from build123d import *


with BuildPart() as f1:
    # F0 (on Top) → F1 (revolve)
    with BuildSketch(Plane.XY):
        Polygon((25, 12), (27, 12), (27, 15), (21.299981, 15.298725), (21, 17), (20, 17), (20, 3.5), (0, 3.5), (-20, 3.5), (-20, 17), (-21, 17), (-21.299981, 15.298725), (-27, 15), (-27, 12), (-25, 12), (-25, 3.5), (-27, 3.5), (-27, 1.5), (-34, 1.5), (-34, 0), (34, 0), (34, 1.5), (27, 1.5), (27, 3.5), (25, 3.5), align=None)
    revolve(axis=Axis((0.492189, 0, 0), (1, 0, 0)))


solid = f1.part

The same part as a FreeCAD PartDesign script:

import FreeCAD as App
import Part
import Sketcher
from FreeCAD import Vector
Q = App.Units.Quantity

doc = App.newDocument("Part")
params = doc.addObject("Spreadsheet::Sheet", "Params")
for row, (alias, value) in enumerate([
    ("sketch1_width", "2 mm"),
    ("sketch1_width2", "1 mm"),
    ("sketch1_width3", "40 mm"),
    ("sketch1_width4", "7 mm"),
    ("sketch1_width5", "68 mm"),
    ("revolution_angle", "360 deg"),
], start=1):
    params.set(f"A{row}", alias)
    params.set(f"B{row}", "=" + value)
    params.setAlias(f"B{row}", alias)

body = doc.addObject("PartDesign::Body", "Body")

sketch1 = doc.addObject("Sketcher::SketchObject", "Sketch")
body.addObject(sketch1)
sketch1.AttachmentSupport = (doc.XY_Plane, [""])
sketch1.MapMode = "FlatFace"
sketch1.addGeometry(Part.LineSegment(Vector(25, 12, 0), Vector(27, 12, 0)), False)
sketch1.addGeometry(Part.LineSegment(Vector(27, 12, 0), Vector(27, 15, 0)), False)
sketch1.addGeometry(Part.LineSegment(Vector(27, 15, 0), Vector(21.3, 15.3, 0)), False)
sketch1.addGeometry(Part.LineSegment(Vector(21.3, 15.3, 0), Vector(21, 17, 0)), False)
sketch1.addGeometry(Part.LineSegment(Vector(21, 17, 0), Vector(20, 17, 0)), False)
sketch1.addGeometry(Part.LineSegment(Vector(20, 17, 0), Vector(20, 3.5, 0)), False)
sketch1.addGeometry(Part.LineSegment(Vector(20, 3.5, 0), Vector(-20, 3.5, 0)), False)
sketch1.addGeometry(Part.LineSegment(Vector(-20, 3.5, 0), Vector(-20, 17, 0)), False)
sketch1.addGeometry(Part.LineSegment(Vector(-20, 17, 0), Vector(-21, 17, 0)), False)
sketch1.addGeometry(Part.LineSegment(Vector(-21, 17, 0), Vector(-21.3, 15.3, 0)), False)
sketch1.addGeometry(Part.LineSegment(Vector(-21.3, 15.3, 0), Vector(-27, 15, 0)), False)
sketch1.addGeometry(Part.LineSegment(Vector(-27, 15, 0), Vector(-27, 12, 0)), False)
sketch1.addGeometry(Part.LineSegment(Vector(-27, 12, 0), Vector(-25, 12, 0)), False)
sketch1.addGeometry(Part.LineSegment(Vector(-25, 12, 0), Vector(-25, 3.5, 0)), False)
sketch1.addGeometry(Part.LineSegment(Vector(-25, 3.5, 0), Vector(-27, 3.5, 0)), False)
sketch1.addGeometry(Part.LineSegment(Vector(-27, 3.5, 0), Vector(-27, 1.5, 0)), False)
sketch1.addGeometry(Part.LineSegment(Vector(-27, 1.5, 0), Vector(-34, 1.5, 0)), False)
sketch1.addGeometry(Part.LineSegment(Vector(-34, 1.5, 0), Vector(-34, 0, 0)), False)
sketch1.addGeometry(Part.LineSegment(Vector(-34, 0, 0), Vector(34, 0, 0)), False)
sketch1.addGeometry(Part.LineSegment(Vector(34, 0, 0), Vector(34, 1.5, 0)), False)
sketch1.addGeometry(Part.LineSegment(Vector(34, 1.5, 0), Vector(27, 1.5, 0)), False)
sketch1.addGeometry(Part.LineSegment(Vector(27, 1.5, 0), Vector(27, 3.5, 0)), False)
sketch1.addGeometry(Part.LineSegment(Vector(27, 3.5, 0), Vector(25, 3.5, 0)), False)
sketch1.addGeometry(Part.LineSegment(Vector(25, 3.5, 0), Vector(25, 12, 0)), False)
sketch1.addConstraint(Sketcher.Constraint("Coincident", 0, 2, 1, 1))
sketch1.addConstraint(Sketcher.Constraint("Coincident", 1, 2, 2, 1))
sketch1.addConstraint(Sketcher.Constraint("Coincident", 2, 2, 3, 1))
sketch1.addConstraint(Sketcher.Constraint("Coincident", 3, 2, 4, 1))
sketch1.addConstraint(Sketcher.Constraint("Coincident", 4, 2, 5, 1))
sketch1.addConstraint(Sketcher.Constraint("Coincident", 5, 2, 6, 1))
sketch1.addConstraint(Sketcher.Constraint("Coincident", 6, 2, 7, 1))
sketch1.addConstraint(Sketcher.Constraint("Coincident", 7, 2, 8, 1))
sketch1.addConstraint(Sketcher.Constraint("Coincident", 8, 2, 9, 1))
sketch1.addConstraint(Sketcher.Constraint("Coincident", 9, 2, 10, 1))
sketch1.addConstraint(Sketcher.Constraint("Coincident", 10, 2, 11, 1))
sketch1.addConstraint(Sketcher.Constraint("Coincident", 11, 2, 12, 1))
sketch1.addConstraint(Sketcher.Constraint("Coincident", 12, 2, 13, 1))
sketch1.addConstraint(Sketcher.Constraint("Coincident", 13, 2, 14, 1))
sketch1.addConstraint(Sketcher.Constraint("Coincident", 14, 2, 15, 1))
sketch1.addConstraint(Sketcher.Constraint("Coincident", 15, 2, 16, 1))
sketch1.addConstraint(Sketcher.Constraint("Coincident", 16, 2, 17, 1))
sketch1.addConstraint(Sketcher.Constraint("Coincident", 17, 2, 18, 1))
sketch1.addConstraint(Sketcher.Constraint("Coincident", 18, 2, 19, 1))
sketch1.addConstraint(Sketcher.Constraint("Coincident", 19, 2, 20, 1))
sketch1.addConstraint(Sketcher.Constraint("Coincident", 20, 2, 21, 1))
sketch1.addConstraint(Sketcher.Constraint("Coincident", 21, 2, 22, 1))
sketch1.addConstraint(Sketcher.Constraint("Coincident", 22, 2, 23, 1))
sketch1.addConstraint(Sketcher.Constraint("Coincident", 23, 2, 0, 1))
sketch1.addConstraint(Sketcher.Constraint("Horizontal", 0))
sketch1.addConstraint(Sketcher.Constraint("Vertical", 1))
sketch1.addConstraint(Sketcher.Constraint("Horizontal", 4))
sketch1.addConstraint(Sketcher.Constraint("Vertical", 5))
sketch1.addConstraint(Sketcher.Constraint("Horizontal", 6))
sketch1.addConstraint(Sketcher.Constraint("Vertical", 7))
sketch1.addConstraint(Sketcher.Constraint("Horizontal", 8))
sketch1.addConstraint(Sketcher.Constraint("Vertical", 11))
sketch1.addConstraint(Sketcher.Constraint("Horizontal", 12))
sketch1.addConstraint(Sketcher.Constraint("Vertical", 13))
sketch1.addConstraint(Sketcher.Constraint("Horizontal", 14))
sketch1.addConstraint(Sketcher.Constraint("Vertical", 15))
sketch1.addConstraint(Sketcher.Constraint("Horizontal", 16))
sketch1.addConstraint(Sketcher.Constraint("Vertical", 17))
sketch1.addConstraint(Sketcher.Constraint("Horizontal", 18))
sketch1.addConstraint(Sketcher.Constraint("Vertical", 19))
sketch1.addConstraint(Sketcher.Constraint("Horizontal", 20))
sketch1.addConstraint(Sketcher.Constraint("Vertical", 21))
sketch1.addConstraint(Sketcher.Constraint("Horizontal", 22))
sketch1.addConstraint(Sketcher.Constraint("Vertical", 23))
sketch1.addConstraint(Sketcher.Constraint("Symmetric", 17, 2, 18, 2, -1, 1))
sketch1.addConstraint(Sketcher.Constraint("Symmetric", 4, 2, 7, 2, -2))
sketch1.addConstraint(Sketcher.Constraint("Symmetric", 2, 2, 9, 2, -2))
sketch1.addConstraint(Sketcher.Constraint("Symmetric", 1, 2, 10, 2, -2))
sketch1.addConstraint(Sketcher.Constraint("Symmetric", 15, 2, 20, 2, -2))
sketch1.addConstraint(Sketcher.Constraint("Symmetric", 13, 2, 22, 2, -2))
sketch1.addConstraint(Sketcher.Constraint("Horizontal", 0, 2, 11, 2))
sketch1.addConstraint(Sketcher.Constraint("Horizontal", 6, 2, 13, 2))
sketch1.addConstraint(Sketcher.Constraint("Vertical", 11, 2, 14, 2))
sketch1.addConstraint(Sketcher.Constraint("Equal", 4, 8))
sketch1.addConstraint(Sketcher.Constraint("Equal", 22, 15))
sketch1.addConstraint(Sketcher.Constraint("DistanceX", 0, 1, 0, 2, 2.0))
sketch1.addConstraint(Sketcher.Constraint("DistanceX", 4, 2, 4, 1, 1.0))
sketch1.addConstraint(Sketcher.Constraint("DistanceX", 6, 2, 6, 1, 40.0))
sketch1.addConstraint(Sketcher.Constraint("DistanceX", 16, 2, 16, 1, 7.0))
sketch1.addConstraint(Sketcher.Constraint("DistanceX", 18, 1, 18, 2, 68.0))
sketch1.addConstraint(Sketcher.Constraint("DistanceY", 1, 1, 1, 2, 3.0))
sketch1.addConstraint(Sketcher.Constraint("Angle", 2, Q("177.000003 deg")))
sketch1.addConstraint(Sketcher.Constraint("Angle", 3, Q("100.00001 deg")))
sketch1.addConstraint(Sketcher.Constraint("DistanceY", 5, 2, 5, 1, 13.5))
sketch1.addConstraint(Sketcher.Constraint("DistanceY", 13, 2, 13, 1, 8.5))
sketch1.addConstraint(Sketcher.Constraint("DistanceY", 17, 2, 17, 1, 1.5))
sketch1.setExpression("Constraints[55]", "Params.sketch1_width")
sketch1.setExpression("Constraints[56]", "Params.sketch1_width2")
sketch1.setExpression("Constraints[57]", "Params.sketch1_width3")
sketch1.setExpression("Constraints[58]", "Params.sketch1_width4")
sketch1.setExpression("Constraints[59]", "Params.sketch1_width5")
revolution = doc.addObject("PartDesign::Revolution", "Revolution")
body.addObject(revolution)
revolution.Profile = sketch1
revolution.ReferenceAxis = (sketch1, ["H_Axis"])
revolution.setExpression("Angle", "Params.revolution_angle")

doc.recompute()
